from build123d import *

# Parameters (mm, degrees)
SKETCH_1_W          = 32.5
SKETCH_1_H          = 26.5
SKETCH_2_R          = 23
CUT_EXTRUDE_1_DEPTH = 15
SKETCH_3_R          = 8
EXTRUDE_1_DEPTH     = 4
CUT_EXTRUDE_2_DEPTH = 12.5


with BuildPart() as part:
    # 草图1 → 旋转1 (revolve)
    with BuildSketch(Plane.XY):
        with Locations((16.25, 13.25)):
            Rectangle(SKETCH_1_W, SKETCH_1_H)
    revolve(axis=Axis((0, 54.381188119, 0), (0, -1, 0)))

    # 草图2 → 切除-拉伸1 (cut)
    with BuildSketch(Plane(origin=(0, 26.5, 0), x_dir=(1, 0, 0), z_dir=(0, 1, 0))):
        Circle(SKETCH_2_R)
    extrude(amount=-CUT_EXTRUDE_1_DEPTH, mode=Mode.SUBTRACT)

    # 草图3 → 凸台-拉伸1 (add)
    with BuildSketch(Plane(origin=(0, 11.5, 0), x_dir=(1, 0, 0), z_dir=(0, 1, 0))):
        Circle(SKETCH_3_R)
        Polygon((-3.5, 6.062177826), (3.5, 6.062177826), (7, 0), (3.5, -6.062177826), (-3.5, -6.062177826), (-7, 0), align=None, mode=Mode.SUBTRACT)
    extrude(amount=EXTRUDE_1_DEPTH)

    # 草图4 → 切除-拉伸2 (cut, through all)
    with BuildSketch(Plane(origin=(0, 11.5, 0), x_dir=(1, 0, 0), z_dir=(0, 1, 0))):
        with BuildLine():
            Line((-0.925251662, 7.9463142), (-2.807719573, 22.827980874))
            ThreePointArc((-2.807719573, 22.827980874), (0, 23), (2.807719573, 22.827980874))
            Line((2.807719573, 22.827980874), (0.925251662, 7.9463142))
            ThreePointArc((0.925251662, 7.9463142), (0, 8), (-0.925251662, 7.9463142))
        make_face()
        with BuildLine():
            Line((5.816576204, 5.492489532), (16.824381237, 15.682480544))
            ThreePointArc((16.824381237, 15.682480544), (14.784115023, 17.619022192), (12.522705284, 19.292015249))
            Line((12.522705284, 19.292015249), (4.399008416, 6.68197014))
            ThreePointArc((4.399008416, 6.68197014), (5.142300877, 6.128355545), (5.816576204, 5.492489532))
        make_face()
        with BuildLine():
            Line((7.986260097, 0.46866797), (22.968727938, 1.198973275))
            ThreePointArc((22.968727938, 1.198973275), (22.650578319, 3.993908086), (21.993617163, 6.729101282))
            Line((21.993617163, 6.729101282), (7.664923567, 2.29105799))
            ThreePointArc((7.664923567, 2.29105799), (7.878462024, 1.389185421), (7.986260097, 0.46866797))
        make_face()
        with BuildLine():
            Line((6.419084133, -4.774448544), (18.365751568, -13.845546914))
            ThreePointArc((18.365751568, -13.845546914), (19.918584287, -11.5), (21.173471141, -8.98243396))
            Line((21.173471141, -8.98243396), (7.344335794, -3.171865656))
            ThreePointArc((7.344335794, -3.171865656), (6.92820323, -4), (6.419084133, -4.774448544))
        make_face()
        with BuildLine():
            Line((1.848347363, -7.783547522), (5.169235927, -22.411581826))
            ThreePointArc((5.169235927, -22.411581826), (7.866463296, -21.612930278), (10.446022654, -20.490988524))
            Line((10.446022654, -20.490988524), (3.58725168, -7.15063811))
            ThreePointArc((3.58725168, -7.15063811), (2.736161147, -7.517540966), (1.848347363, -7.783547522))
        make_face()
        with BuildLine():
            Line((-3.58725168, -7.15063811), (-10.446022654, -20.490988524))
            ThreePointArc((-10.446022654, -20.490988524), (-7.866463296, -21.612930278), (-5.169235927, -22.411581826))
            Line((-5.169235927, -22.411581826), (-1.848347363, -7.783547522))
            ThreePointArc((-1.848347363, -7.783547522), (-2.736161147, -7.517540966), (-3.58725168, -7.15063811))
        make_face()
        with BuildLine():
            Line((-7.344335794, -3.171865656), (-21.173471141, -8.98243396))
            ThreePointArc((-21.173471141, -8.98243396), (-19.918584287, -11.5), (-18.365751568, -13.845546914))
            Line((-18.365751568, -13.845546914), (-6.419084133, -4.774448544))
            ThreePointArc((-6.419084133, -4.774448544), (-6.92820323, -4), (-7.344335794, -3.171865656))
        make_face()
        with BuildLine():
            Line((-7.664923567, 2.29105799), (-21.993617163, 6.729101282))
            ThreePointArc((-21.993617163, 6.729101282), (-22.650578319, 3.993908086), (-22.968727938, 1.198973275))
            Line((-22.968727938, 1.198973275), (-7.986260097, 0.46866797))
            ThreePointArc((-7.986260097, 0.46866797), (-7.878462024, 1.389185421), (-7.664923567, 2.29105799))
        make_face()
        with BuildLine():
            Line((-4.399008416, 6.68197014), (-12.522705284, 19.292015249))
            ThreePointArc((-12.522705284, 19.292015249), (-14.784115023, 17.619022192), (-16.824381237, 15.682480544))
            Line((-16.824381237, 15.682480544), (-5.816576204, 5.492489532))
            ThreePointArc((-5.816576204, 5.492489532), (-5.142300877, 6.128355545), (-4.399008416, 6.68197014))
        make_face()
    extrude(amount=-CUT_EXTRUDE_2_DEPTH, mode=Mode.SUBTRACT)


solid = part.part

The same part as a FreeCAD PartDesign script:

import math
import FreeCAD as App
import Part
import Sketcher
from FreeCAD import Vector
Q = App.Units.Quantity


def add_polygon(sketch, points):
    """Adds a closed chain of lines whose ends are joined by coincident constraints."""
    first, n = sketch.GeometryCount, len(points)
    for a, b in zip(points, points[1:] + points[:1]):
        sketch.addGeometry(Part.LineSegment(App.Vector(*a, 0), App.Vector(*b, 0)), False)
    for i in range(n):
        sketch.addConstraint(Sketcher.Constraint("Coincident", first + i, 2, first + (i + 1) % n, 1))

doc = App.newDocument("Part")
body = doc.addObject("PartDesign::Body", "Body")

sketch1 = body.newObject("Sketcher::SketchObject", "Sketch")
sketch1.AttachmentSupport = (doc.getObject("XY_Plane"), [""])
sketch1.MapMode = "FlatFace"
add_polygon(sketch1, [(0, 26), (0, 0), (32, 0), (32, 26)])
sketch1.addConstraint([
    Sketcher.Constraint("Vertical", 0),
    Sketcher.Constraint("Horizontal", 1),
    Sketcher.Constraint("Vertical", 2),
    Sketcher.Constraint("Horizontal", 3),
    Sketcher.Constraint("Coincident", 0, 2, -1, 1),
    Sketcher.Constraint("DistanceX", 1, 1, 1, 2, Q("32.5 mm")),
    Sketcher.Constraint("DistanceY", 0, 2, 0, 1, Q("26.5 mm")),
])
revolution = body.newObject("PartDesign::Revolution", "Revolution")
revolution.Profile = sketch1
revolution.ReferenceAxis = (sketch1, ["V_Axis"])
revolution.Angle = 360

sketch2 = body.newObject("Sketcher::SketchObject", "Sketch001")
sketch2.AttachmentSupport = (doc.getObject("XZ_Plane"), [""])
sketch2.MapMode = "FlatFace"
sketch2.AttachmentOffset = App.Placement(Vector(0, 0, -26.5), App.Rotation())
sketch2.addGeometry(Part.Circle(Vector(0, 0, 0), Vector(0, 0, 1), 23), False)
sketch2.addConstraint([
    Sketcher.Constraint("Coincident", 0, 3, -1, 1),
    Sketcher.Constraint("Diameter", 0, Q("46 mm")),
])
pocket1 = body.newObject("PartDesign::Pocket", "Pocket")
pocket1.Profile = sketch2
pocket1.Length = 15
pocket1.Reversed = True

sketch3 = body.newObject("Sketcher::SketchObject", "Sketch002")
sketch3.AttachmentSupport = (doc.getObject("XZ_Plane"), [""])
sketch3.MapMode = "FlatFace"
sketch3.AttachmentOffset = App.Placement(Vector(0, 0, -11.5), App.Rotation())
sketch3.addGeometry(Part.Circle(Vector(0, 0, 0), Vector(0, 0, 1), 8), False)
add_polygon(sketch3, [(-7, 0), (-4, -6), (4, -6), (7, 0), (4, 6), (-4, 6)])
sketch3.addConstraint([
    Sketcher.Constraint("Horizontal", 2),
    Sketcher.Constraint("Horizontal", 5),
    Sketcher.Constraint("Coincident", 0, 3, -1, 1),
    Sketcher.Constraint("Symmetric", 1, 2, 4, 2, -1, 1),
    Sketcher.Constraint("Symmetric", 3, 2, 6, 2, -1, 1),
    Sketcher.Constraint("PointOnObject", 3, 2, -1),
    Sketcher.Constraint("Parallel", 3, 6),
    Sketcher.Constraint("Vertical", 2, 2, 4, 2),
    Sketcher.Constraint("Diameter", 0, Q("16 mm")),
    Sketcher.Constraint("DistanceX", 2, 1, 2, 2, Q("7 mm")),
    Sketcher.Constraint("Angle", 1, Q("-60 deg")),
    Sketcher.Constraint("Distance", 1, Q("7 mm")),
])
pad1 = body.newObject("PartDesign::Pad", "Pad")
pad1.Profile = sketch3
pad1.Length = 4
pad1.Reversed = True

sketch4 = body.newObject("Sketcher::SketchObject", "Sketch003")
sketch4.AttachmentSupport = (doc.getObject("XZ_Plane"), [""])
sketch4.MapMode = "FlatFace"
sketch4.AttachmentOffset = App.Placement(Vector(0, 0, -11.5), App.Rotation())
sketch4.addGeometry([
    Part.LineSegment(Vector(-2.8, -22.8, 0), Vector(-0.9, -7.9, 0)),
    Part.ArcOfCircle(Part.Circle(Vector(0, 0, 0), Vector(0, 0, 1), 8), math.radians(-96.64), math.radians(-83.36)),
    Part.LineSegment(Vector(0.9, -7.9, 0), Vector(2.8, -22.8, 0)),
    Part.ArcOfCircle(Part.Circle(Vector(0, 0, 0), Vector(0, 0, 1), 23), math.radians(-97.01), math.radians(-82.99)),
    Part.LineSegment(Vector(5.8, -5.5, 0), Vector(16.8, -15.7, 0)),
    Part.ArcOfCircle(Part.Circle(Vector(0, 0, 0), Vector(0, 0, 1), 23), math.radians(-57.01), math.radians(-42.99)),
    Part.LineSegment(Vector(12.5, -19.3, 0), Vector(4.4, -6.7, 0)),
    Part.ArcOfCircle(Part.Circle(Vector(0, 0, 0), Vector(0, 0, 1), 8), math.radians(-56.64), math.radians(-43.36)),
    Part.LineSegment(Vector(8, -0.5, 0), Vector(23, -1.2, 0)),
    Part.ArcOfCircle(Part.Circle(Vector(0, 0, 0), Vector(0, 0, 1), 23), math.radians(-17.01), math.radians(-2.99)),
    Part.LineSegment(Vector(22, -6.7, 0), Vector(7.7, -2.3, 0)),
    Part.ArcOfCircle(Part.Circle(Vector(0, 0, 0), Vector(0, 0, 1), 8), math.radians(-16.64), math.radians(-3.36)),
    Part.LineSegment(Vector(6.4, 4.8, 0), Vector(18.4, 13.8, 0)),
    Part.ArcOfCircle(Part.Circle(Vector(0, 0, 0), Vector(0, 0, 1), 23), math.radians(22.99), math.radians(37.01)),
    Part.LineSegment(Vector(21.2, 9, 0), Vector(7.3, 3.2, 0)),
    Part.ArcOfCircle(Part.Circle(Vector(0, 0, 0), Vector(0, 0, 1), 8), math.radians(23.36), math.radians(36.64)),
    Part.LineSegment(Vector(1.8, 7.8, 0), Vector(5.2, 22.4, 0)),
    Part.ArcOfCircle(Part.Circle(Vector(0, 0, 0), Vector(0, 0, 1), 23), math.radians(62.99), math.radians(77.01)),
    Part.LineSegment(Vector(10.4, 20.5, 0), Vector(3.6, 7.2, 0)),
    Part.ArcOfCircle(Part.Circle(Vector(0, 0, 0), Vector(0, 0, 1), 8), math.radians(63.36), math.radians(76.64)),
    Part.LineSegment(Vector(-3.6, 7.2, 0), Vector(-10.4, 20.5, 0)),
    Part.ArcOfCircle(Part.Circle(Vector(0, 0, 0), Vector(0, 0, 1), 23), math.radians(102.99), math.radians(117.01)),
    Part.LineSegment(Vector(-5.2, 22.4, 0), Vector(-1.8, 7.8, 0)),
    Part.ArcOfCircle(Part.Circle(Vector(0, 0, 0), Vector(0, 0, 1), 8), math.radians(103.36), math.radians(116.64)),
    Part.LineSegment(Vector(-7.3, 3.2, 0), Vector(-21.2, 9, 0)),
    Part.ArcOfCircle(Part.Circle(Vector(0, 0, 0), Vector(0, 0, 1), 23), math.radians(142.99), math.radians(157.01)),
    Part.LineSegment(Vector(-18.4, 13.8, 0), Vector(-6.4, 4.8, 0)),
    Part.ArcOfCircle(Part.Circle(Vector(0, 0, 0), Vector(0, 0, 1), 8), math.radians(143.36), math.radians(156.64)),
    Part.LineSegment(Vector(-7.7, -2.3, 0), Vector(-22, -6.7, 0)),
    Part.ArcOfCircle(Part.Circle(Vector(0, 0, 0), Vector(0, 0, 1), 23), math.radians(-177.01), math.radians(-162.99)),
    Part.LineSegment(Vector(-23, -1.2, 0), Vector(-8, -0.5, 0)),
    Part.ArcOfCircle(Part.Circle(Vector(0, 0, 0), Vector(0, 0, 1), 8), math.radians(-176.64), math.radians(-163.36)),
    Part.LineSegment(Vector(-4.4, -6.7, 0), Vector(-12.5, -19.3, 0)),
    Part.ArcOfCircle(Part.Circle(Vector(0, 0, 0), Vector(0, 0, 1), 23), math.radians(-137.01), math.radians(-122.99)),
    Part.LineSegment(Vector(-16.8, -15.7, 0), Vector(-5.8, -5.5, 0)),
    Part.ArcOfCircle(Part.Circle(Vector(0, 0, 0), Vector(0, 0, 1), 8), math.radians(-136.64), math.radians(-123.36)),
], False)
sketch4.addConstraint([
    Sketcher.Constraint("Coincident", 0, 2, 1, 1),
    Sketcher.Constraint("Coincident", 1, 2, 2, 1),
    Sketcher.Constraint("Coincident", 2, 2, 3, 2),
    Sketcher.Constraint("Coincident", 3, 1, 0, 1),
    Sketcher.Constraint("Coincident", 4, 2, 5, 2),
    Sketcher.Constraint("Coincident", 5, 1, 6, 1),
    Sketcher.Constraint("Coincident", 6, 2, 7, 1),
    Sketcher.Constraint("Coincident", 7, 2, 4, 1),
    Sketcher.Constraint("Coincident", 8, 2, 9, 2),
    Sketcher.Constraint("Coincident", 9, 1, 10, 1),
    Sketcher.Constraint("Coincident", 10, 2, 11, 1),
    Sketcher.Constraint("Coincident", 11, 2, 8, 1),
    Sketcher.Constraint("Coincident", 12, 2, 13, 2),
    Sketcher.Constraint("Coincident", 13, 1, 14, 1),
    Sketcher.Constraint("Coincident", 14, 2, 15, 1),
    Sketcher.Constraint("Coincident", 15, 2, 12, 1),
    Sketcher.Constraint("Coincident", 16, 2, 17, 2),
    Sketcher.Constraint("Coincident", 17, 1, 18, 1),
    Sketcher.Constraint("Coincident", 18, 2, 19, 1),
    Sketcher.Constraint("Coincident", 19, 2, 16, 1),
    Sketcher.Constraint("Coincident", 20, 2, 21, 2),
    Sketcher.Constraint("Coincident", 21, 1, 22, 1),
    Sketcher.Constraint("Coincident", 22, 2, 23, 1),
    Sketcher.Constraint("Coincident", 23, 2, 20, 1),
    Sketcher.Constraint("Coincident", 24, 2, 25, 2),
    Sketcher.Constraint("Coincident", 25, 1, 26, 1),
    Sketcher.Constraint("Coincident", 26, 2, 27, 1),
    Sketcher.Constraint("Coincident", 27, 2, 24, 1),
    Sketcher.Constraint("Coincident", 28, 2, 29, 2),
    Sketcher.Constraint("Coincident", 29, 1, 30, 1),
    Sketcher.Constraint("Coincident", 30, 2, 31, 1),
    Sketcher.Constraint("Coincident", 31, 2, 28, 1),
    Sketcher.Constraint("Coincident", 32, 2, 33, 2),
    Sketcher.Constraint("Coincident", 33, 1, 34, 1),
    Sketcher.Constraint("Coincident", 34, 2, 35, 1),
    Sketcher.Constraint("Coincident", 35, 2, 32, 1),
    Sketcher.Constraint("Coincident", 1, 3, -1, 1),
    Sketcher.Constraint("Coincident", 3, 3, -1, 1),
    Sketcher.Constraint("Coincident", 5, 3, -1, 1),
    Sketcher.Constraint("Coincident", 7, 3, -1, 1),
    Sketcher.Constraint("Coincident", 9, 3, -1, 1),
    Sketcher.Constraint("Coincident", 11, 3, -1, 1),
    Sketcher.Constraint("Coincident", 13, 3, -1, 1),
    Sketcher.Constraint("Coincident", 15, 3, -1, 1),
    Sketcher.Constraint("Coincident", 17, 3, -1, 1),
    Sketcher.Constraint("Coincident", 19, 3, -1, 1),
    Sketcher.Constraint("Coincident", 21, 3, -1, 1),
    Sketcher.Constraint("Coincident", 23, 3, -1, 1),
    Sketcher.Constraint("Coincident", 25, 3, -1, 1),
    Sketcher.Constraint("Coincident", 27, 3, -1, 1),
    Sketcher.Constraint("Coincident", 29, 3, -1, 1),
    Sketcher.Constraint("Coincident", 31, 3, -1, 1),
    Sketcher.Constraint("Coincident", 33, 3, -1, 1),
    Sketcher.Constraint("Coincident", 35, 3, -1, 1),
    Sketcher.Constraint("Equal", 3, 5),
    Sketcher.Constraint("Equal", 1, 7),
    Sketcher.Constraint("Equal", 5, 9),
    Sketcher.Constraint("Equal", 7, 11),
    Sketcher.Constraint("Equal", 9, 13),
    Sketcher.Constraint("Equal", 11, 15),
    Sketcher.Constraint("Equal", 13, 17),
    Sketcher.Constraint("Equal", 15, 19),
    Sketcher.Constraint("Equal", 17, 21),
    Sketcher.Constraint("Equal", 19, 23),
    Sketcher.Constraint("Equal", 21, 25),
    Sketcher.Constraint("Equal", 23, 27),
    Sketcher.Constraint("Equal", 25, 29),
    Sketcher.Constraint("Equal", 27, 31),
    Sketcher.Constraint("Equal", 29, 33),
    Sketcher.Constraint("Equal", 31, 35),
    Sketcher.Constraint("Horizontal", 0, 2, 1, 2),
    Sketcher.Constraint("Horizontal", 2, 2, 3, 1),
    Sketcher.Constraint("Horizontal", 17, 1, 20, 2),
    Sketcher.Constraint("Horizontal", 16, 2, 21, 1),
    Sketcher.Constraint("Horizontal", 19, 2, 22, 2),
    Sketcher.Constraint("Horizontal", 18, 2, 23, 2),
    Sketcher.Constraint("Horizontal", 13, 1, 24, 2),
    Sketcher.Constraint("Horizontal", 12, 2, 25, 1),
    Sketcher.Constraint("Horizontal", 15, 2, 26, 2),
    Sketcher.Constraint("Horizontal", 14, 2, 27, 2),
    Sketcher.Constraint("Horizontal", 9, 1, 28, 2),
    Sketcher.Constraint("Horizontal", 8, 2, 29, 1),
    Sketcher.Constraint("Horizontal", 11, 2, 30, 2),
    Sketcher.Constraint("Horizontal", 10, 2, 31, 2),
    Sketcher.Constraint("Horizontal", 5, 1, 32, 2),
    Sketcher.Constraint("Horizontal", 4, 2, 33, 1),
    Sketcher.Constraint("Horizontal", 7, 2, 34, 2),
    Sketcher.Constraint("Horizontal", 6, 2, 35, 2),
    Sketcher.Constraint("Equal", 2, 4),
    Sketcher.Constraint("Equal", 4, 6),
    Sketcher.Constraint("Equal", 6, 8),
    Sketcher.Constraint("Equal", 8, 10),
    Sketcher.Constraint("Equal", 10, 12),
    Sketcher.Constraint("Equal", 12, 14),
    Sketcher.Constraint("Equal", 14, 16),
    Sketcher.Constraint("Equal", 16, 18),
    Sketcher.Constraint("Radius", 1, Q("8 mm")),
    Sketcher.Constraint("Radius", 3, Q("23 mm")),
    Sketcher.Constraint("DistanceY", 22, 2, 25, 1, Q("6.061999 mm")),
    Sketcher.Constraint("DistanceY", 9, 1, -1, 1, Q("6.729101 mm")),
    Sketcher.Constraint("DistanceY", 2, 2, 4, 2, Q("7.1455 mm")),
    Sketcher.Constraint("DistanceX", 3, 1, 4, 2, Q("19.632101 mm")),
    Sketcher.Constraint("DistanceY", 5, 1, 1, 2, Q("11.345701 mm")),
    Sketcher.Constraint("DistanceY", 11, 2, 13, 1, Q("9.451102 mm")),
    Sketcher.Constraint("DistanceX", 16, 2, 14, 2, Q("2.1751 mm")),
    Sketcher.Constraint("DistanceY", 15, 2, 19, 2, Q("3.009099 mm")),
    Sketcher.Constraint("DistanceX", 22, 2, 18, 2, Q("5.435599 mm")),
    Sketcher.Constraint("DistanceX", 0, 2, -1, 1, Q("0.925252 mm")),
])
pocket2 = body.newObject("PartDesign::Pocket", "Pocket001")
pocket2.Profile = sketch4
pocket2.Type = "ThroughAll"
pocket2.Reversed = True

doc.recompute()
